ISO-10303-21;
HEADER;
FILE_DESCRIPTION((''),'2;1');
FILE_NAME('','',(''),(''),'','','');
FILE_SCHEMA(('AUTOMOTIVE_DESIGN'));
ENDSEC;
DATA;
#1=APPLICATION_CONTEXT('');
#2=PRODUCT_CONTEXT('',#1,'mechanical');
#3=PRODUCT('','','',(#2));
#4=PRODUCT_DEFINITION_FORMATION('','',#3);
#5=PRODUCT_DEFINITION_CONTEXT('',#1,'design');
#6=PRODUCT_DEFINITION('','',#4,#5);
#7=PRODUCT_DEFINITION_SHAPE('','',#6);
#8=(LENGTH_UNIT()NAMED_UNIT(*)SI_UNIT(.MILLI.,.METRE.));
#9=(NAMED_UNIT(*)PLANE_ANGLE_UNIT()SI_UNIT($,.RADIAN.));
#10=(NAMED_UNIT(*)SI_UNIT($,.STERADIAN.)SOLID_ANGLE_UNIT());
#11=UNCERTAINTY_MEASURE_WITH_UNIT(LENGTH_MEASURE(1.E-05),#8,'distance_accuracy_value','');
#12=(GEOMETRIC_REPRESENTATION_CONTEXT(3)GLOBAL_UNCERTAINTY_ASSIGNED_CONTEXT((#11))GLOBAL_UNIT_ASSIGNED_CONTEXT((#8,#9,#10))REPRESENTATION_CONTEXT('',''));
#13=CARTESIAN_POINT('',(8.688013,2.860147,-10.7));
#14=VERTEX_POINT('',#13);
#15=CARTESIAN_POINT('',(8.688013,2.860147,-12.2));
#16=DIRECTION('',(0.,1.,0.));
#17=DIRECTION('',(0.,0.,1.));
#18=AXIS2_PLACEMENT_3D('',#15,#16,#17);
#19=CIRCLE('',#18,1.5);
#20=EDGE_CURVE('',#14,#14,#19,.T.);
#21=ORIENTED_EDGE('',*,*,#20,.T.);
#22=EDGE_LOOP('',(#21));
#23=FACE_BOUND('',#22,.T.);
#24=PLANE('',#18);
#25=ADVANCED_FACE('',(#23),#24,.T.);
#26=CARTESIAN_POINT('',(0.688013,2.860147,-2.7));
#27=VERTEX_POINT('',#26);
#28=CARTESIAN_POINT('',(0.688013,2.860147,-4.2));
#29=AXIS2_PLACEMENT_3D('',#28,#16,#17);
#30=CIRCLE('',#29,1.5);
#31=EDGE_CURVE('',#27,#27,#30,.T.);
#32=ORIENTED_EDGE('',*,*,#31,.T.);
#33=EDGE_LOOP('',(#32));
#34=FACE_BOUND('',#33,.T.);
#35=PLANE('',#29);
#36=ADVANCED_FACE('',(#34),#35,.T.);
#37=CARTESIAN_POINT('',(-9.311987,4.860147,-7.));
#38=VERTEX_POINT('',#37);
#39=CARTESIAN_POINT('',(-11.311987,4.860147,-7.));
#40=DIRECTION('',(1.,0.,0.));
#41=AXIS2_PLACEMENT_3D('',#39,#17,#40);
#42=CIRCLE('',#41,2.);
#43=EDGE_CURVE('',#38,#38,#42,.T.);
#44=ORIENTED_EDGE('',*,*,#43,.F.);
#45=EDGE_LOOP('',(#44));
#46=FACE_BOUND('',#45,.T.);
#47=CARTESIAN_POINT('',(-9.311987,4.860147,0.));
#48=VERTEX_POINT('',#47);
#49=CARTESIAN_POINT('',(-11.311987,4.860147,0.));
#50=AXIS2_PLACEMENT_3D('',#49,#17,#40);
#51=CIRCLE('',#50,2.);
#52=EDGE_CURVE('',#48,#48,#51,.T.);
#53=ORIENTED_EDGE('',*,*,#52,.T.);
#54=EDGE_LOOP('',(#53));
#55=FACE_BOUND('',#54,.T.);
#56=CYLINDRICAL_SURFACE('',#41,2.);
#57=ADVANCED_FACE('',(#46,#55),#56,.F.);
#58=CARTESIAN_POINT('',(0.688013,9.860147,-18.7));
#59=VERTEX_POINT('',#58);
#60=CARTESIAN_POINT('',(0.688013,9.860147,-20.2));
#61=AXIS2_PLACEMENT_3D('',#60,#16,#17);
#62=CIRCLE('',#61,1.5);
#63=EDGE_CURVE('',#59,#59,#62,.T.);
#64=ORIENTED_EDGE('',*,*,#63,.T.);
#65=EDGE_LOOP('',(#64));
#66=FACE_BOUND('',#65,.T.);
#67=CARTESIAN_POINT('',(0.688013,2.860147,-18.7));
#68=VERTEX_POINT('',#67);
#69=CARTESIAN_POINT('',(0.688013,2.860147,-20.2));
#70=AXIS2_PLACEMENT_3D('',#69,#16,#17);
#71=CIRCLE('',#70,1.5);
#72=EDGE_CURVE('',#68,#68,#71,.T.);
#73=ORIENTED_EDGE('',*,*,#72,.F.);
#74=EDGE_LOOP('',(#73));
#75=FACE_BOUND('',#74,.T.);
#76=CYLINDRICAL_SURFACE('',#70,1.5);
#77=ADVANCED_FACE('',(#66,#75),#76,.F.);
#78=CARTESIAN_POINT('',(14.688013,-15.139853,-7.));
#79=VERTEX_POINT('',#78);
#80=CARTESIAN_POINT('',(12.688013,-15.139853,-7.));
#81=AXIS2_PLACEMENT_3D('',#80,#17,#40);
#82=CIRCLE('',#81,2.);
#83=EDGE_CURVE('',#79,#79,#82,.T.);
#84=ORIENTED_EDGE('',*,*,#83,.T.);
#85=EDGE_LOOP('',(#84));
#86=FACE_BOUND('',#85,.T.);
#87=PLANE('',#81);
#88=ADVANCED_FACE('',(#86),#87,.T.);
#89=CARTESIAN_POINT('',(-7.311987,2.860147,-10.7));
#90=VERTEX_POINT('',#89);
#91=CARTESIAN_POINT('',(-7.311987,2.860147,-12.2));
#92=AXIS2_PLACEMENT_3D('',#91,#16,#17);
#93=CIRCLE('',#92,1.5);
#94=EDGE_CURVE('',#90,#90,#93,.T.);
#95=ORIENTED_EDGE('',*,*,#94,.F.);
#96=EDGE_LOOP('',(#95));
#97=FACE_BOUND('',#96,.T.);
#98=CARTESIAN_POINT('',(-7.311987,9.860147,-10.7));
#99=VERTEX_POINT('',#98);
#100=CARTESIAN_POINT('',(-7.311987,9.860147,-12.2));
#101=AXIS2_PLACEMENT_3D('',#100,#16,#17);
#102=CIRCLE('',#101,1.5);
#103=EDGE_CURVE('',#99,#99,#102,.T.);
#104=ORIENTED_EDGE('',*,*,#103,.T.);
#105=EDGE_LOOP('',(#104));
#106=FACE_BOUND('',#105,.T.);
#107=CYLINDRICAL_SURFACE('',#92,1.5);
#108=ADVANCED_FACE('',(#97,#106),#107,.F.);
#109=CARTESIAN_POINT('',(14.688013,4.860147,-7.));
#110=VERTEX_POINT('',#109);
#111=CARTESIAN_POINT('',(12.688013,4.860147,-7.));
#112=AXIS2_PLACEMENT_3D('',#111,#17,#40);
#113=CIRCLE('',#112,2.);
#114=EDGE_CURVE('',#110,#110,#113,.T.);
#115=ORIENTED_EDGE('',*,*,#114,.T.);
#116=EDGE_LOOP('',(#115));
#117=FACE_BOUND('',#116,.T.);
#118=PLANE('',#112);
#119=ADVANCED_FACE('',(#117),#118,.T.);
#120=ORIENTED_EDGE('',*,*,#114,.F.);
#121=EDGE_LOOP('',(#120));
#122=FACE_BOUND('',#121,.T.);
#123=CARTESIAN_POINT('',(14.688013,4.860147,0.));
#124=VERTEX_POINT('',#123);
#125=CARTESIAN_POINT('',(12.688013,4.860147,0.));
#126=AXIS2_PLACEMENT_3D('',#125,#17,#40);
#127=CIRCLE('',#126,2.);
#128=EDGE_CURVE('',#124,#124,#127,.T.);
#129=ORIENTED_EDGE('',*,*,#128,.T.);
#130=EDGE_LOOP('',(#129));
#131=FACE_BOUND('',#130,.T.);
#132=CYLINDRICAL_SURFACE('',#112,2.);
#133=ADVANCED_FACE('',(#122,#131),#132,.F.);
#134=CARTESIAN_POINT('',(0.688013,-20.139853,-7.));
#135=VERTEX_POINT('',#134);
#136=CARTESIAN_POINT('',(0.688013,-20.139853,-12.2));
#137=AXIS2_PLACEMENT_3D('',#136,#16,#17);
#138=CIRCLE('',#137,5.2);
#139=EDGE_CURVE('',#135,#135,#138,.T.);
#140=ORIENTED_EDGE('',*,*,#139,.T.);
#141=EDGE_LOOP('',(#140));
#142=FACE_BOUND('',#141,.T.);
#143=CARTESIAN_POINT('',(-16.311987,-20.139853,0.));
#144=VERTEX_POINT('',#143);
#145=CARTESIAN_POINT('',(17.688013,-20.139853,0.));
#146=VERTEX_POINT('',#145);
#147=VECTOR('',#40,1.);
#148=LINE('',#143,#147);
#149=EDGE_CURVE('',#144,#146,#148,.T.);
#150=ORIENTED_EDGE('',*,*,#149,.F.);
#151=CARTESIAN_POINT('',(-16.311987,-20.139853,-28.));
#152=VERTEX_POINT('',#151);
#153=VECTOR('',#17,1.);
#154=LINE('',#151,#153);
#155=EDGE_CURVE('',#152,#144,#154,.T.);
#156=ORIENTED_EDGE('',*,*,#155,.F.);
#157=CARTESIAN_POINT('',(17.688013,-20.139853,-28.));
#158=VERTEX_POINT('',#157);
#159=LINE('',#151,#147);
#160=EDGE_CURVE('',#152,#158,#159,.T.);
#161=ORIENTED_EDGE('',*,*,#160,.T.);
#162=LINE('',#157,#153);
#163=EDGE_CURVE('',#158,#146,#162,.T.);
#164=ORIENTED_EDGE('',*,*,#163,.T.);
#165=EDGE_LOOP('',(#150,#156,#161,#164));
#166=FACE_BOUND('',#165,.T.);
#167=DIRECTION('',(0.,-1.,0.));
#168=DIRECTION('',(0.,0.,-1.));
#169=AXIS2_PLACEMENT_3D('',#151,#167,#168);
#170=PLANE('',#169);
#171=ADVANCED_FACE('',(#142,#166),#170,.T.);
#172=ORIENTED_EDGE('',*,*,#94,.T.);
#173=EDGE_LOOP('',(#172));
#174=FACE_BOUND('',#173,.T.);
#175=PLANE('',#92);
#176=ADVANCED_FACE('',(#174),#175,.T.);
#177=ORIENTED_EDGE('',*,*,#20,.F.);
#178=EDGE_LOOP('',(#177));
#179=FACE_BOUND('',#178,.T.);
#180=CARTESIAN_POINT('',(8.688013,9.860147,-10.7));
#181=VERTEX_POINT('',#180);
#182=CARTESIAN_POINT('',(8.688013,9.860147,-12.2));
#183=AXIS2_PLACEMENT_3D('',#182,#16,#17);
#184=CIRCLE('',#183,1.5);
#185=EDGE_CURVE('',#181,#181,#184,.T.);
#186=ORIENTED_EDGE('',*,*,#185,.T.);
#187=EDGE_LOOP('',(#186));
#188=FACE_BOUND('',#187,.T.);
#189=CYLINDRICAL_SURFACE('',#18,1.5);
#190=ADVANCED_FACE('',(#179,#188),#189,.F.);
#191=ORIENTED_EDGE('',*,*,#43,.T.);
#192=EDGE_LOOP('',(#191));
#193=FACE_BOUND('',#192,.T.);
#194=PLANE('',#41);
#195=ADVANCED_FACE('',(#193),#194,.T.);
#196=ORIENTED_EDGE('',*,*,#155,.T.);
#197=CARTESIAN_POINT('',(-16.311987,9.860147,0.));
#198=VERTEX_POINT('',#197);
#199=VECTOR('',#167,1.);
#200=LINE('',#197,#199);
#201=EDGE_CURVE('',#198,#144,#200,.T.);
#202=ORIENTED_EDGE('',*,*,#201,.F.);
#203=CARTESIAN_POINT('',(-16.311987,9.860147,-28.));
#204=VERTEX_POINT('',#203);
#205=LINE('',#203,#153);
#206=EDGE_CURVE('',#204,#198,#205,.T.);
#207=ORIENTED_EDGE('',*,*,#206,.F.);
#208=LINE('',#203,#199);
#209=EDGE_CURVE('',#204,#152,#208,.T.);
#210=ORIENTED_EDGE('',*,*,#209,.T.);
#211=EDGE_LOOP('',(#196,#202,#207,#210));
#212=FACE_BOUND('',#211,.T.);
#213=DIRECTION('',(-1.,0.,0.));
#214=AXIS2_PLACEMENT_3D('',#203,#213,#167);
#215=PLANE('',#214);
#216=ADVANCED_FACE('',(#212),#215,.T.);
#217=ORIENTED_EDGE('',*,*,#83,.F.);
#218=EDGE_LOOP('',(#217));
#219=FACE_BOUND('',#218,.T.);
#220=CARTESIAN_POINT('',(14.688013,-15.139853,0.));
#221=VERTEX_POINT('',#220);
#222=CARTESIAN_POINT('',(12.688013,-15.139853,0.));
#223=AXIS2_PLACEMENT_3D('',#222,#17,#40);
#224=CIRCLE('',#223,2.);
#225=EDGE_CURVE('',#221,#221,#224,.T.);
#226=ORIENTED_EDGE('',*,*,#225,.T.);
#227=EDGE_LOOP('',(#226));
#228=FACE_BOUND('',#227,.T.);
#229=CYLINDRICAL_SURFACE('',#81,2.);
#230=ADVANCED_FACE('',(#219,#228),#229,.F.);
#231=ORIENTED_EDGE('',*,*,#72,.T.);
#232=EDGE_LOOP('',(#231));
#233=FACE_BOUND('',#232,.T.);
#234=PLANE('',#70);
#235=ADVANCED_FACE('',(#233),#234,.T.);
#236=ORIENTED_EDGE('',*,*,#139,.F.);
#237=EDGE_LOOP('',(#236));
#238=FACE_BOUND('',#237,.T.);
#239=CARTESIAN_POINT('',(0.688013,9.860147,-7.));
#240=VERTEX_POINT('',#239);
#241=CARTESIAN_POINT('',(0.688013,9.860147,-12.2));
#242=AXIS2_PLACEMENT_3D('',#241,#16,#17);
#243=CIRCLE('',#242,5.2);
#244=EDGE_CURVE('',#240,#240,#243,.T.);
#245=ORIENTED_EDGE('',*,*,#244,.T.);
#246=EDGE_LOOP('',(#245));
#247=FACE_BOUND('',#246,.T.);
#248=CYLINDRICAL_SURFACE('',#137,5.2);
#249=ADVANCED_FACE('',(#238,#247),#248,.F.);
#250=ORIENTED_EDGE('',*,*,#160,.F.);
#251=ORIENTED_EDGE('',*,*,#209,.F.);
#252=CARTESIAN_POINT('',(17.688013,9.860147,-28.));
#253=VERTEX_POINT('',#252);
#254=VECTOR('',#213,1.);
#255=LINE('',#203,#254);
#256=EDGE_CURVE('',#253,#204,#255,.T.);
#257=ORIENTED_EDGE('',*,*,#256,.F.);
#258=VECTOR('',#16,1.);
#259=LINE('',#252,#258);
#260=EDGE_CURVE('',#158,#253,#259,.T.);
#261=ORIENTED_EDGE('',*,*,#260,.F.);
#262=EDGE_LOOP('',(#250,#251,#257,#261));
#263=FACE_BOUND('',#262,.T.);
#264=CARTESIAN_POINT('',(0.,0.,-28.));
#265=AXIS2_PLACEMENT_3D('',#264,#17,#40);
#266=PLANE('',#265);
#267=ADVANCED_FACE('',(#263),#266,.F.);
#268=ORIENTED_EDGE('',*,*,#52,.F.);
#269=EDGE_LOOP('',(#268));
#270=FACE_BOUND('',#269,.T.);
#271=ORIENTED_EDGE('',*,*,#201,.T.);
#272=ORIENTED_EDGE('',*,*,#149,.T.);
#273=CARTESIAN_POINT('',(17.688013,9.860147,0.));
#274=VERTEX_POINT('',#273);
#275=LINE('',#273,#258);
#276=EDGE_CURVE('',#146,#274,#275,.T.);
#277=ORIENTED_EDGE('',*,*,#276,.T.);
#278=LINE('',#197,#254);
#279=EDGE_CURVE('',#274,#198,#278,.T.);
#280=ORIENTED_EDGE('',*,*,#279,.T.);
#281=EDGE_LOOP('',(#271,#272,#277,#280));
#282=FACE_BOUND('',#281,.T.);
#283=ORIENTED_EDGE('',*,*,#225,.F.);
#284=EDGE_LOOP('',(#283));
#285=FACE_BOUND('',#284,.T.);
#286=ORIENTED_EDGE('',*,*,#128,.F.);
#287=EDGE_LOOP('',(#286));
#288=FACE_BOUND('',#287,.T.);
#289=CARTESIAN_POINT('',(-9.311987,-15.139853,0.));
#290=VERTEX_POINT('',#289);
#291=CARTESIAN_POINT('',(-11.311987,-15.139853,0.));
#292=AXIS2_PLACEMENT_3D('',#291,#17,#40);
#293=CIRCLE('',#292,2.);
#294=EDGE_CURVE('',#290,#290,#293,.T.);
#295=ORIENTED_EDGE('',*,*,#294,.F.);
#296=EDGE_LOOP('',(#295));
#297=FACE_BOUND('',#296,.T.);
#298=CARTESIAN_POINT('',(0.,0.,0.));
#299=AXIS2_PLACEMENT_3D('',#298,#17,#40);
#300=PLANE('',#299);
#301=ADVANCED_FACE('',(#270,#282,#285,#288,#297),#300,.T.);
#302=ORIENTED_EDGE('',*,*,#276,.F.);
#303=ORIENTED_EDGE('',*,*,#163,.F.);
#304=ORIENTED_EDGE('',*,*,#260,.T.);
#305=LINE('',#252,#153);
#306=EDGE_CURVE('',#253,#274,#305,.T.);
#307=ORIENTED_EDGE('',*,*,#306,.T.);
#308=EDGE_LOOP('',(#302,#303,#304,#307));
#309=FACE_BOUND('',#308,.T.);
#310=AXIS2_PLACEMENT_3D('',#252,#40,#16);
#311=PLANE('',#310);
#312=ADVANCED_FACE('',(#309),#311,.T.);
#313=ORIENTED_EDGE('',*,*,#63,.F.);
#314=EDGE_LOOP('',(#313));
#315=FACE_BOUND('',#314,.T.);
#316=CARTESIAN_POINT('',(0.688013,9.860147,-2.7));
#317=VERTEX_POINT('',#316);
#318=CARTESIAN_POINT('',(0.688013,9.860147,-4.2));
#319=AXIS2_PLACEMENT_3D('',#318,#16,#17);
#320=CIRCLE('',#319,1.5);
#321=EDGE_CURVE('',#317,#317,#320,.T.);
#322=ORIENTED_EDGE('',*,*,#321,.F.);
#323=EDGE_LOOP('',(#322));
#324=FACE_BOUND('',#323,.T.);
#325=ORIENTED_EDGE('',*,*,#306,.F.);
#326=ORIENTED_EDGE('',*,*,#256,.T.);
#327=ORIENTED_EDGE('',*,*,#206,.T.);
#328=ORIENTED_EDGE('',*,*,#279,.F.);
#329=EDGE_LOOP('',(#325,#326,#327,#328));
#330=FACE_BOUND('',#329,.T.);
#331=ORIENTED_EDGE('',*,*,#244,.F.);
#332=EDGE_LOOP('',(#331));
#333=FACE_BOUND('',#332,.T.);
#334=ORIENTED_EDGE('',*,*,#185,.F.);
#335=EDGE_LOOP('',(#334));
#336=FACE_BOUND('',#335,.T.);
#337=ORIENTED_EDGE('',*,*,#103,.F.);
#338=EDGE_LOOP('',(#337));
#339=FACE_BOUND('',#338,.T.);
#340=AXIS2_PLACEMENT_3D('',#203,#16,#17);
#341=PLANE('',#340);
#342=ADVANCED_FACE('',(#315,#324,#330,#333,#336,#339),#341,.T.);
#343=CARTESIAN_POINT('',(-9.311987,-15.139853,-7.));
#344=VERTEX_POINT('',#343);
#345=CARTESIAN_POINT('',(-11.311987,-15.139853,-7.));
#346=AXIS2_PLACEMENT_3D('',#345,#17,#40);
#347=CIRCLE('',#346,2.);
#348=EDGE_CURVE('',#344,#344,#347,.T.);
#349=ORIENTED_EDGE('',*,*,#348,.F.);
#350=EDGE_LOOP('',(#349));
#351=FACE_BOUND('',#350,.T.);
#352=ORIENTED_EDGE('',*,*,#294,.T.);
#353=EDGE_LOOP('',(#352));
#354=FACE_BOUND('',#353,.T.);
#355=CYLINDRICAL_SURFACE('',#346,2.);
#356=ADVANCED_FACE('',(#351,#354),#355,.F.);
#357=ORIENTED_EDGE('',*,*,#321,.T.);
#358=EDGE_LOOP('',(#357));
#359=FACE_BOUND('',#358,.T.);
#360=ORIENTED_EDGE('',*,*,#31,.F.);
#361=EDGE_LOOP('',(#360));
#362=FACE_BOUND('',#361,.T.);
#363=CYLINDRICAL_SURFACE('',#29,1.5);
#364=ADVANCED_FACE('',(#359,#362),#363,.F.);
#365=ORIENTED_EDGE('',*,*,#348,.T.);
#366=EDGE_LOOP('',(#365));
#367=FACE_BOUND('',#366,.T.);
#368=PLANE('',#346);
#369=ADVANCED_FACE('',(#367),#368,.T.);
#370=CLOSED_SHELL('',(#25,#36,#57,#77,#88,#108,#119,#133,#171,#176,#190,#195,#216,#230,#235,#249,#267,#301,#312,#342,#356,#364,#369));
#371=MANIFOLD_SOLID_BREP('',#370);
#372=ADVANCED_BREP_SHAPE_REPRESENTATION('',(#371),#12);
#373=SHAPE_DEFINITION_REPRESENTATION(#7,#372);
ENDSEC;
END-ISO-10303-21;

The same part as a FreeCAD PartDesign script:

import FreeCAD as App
import Part
import Sketcher

doc = App.newDocument("Part")
body = doc.addObject("PartDesign::Body", "Body")

# Sketch on XY plane
sketch1 = body.newObject("Sketcher::SketchObject", "Sketch")
sketch1.AttachmentSupport = (doc.getObject("XY_Plane"), [""])
sketch1.MapMode = "FlatFace"
sketch1.addGeometry([
    Part.LineSegment(App.Vector(-16.311987, 9.860147, 0), App.Vector(-16.311987, -20.139853, 0)),
    Part.LineSegment(App.Vector(-16.311987, -20.139853, 0), App.Vector(17.688013, -20.139853, 0)),
    Part.LineSegment(App.Vector(17.688013, -20.139853, 0), App.Vector(17.688013, 9.860147, 0)),
    Part.LineSegment(App.Vector(17.688013, 9.860147, 0), App.Vector(-16.311987, 9.860147, 0)),
], False)
sketch1.addConstraint([
    Sketcher.Constraint("Coincident", 0, 2, 1, 1),
    Sketcher.Constraint("Coincident", 1, 2, 2, 1),
    Sketcher.Constraint("Coincident", 2, 2, 3, 1),
    Sketcher.Constraint("Coincident", 3, 2, 0, 1),
    Sketcher.Constraint("Vertical", 0),
    Sketcher.Constraint("Horizontal", 1),
    Sketcher.Constraint("Vertical", 2),
    Sketcher.Constraint("Horizontal", 3),
    Sketcher.Constraint("DistanceX", 1, 1, 1, 2, 34.0),
    Sketcher.Constraint("DistanceY", 0, 2, 0, 1, 30.0),
    Sketcher.Constraint("DistanceX", 0, 2, -1, 1, 16.311987),
    Sketcher.Constraint("DistanceY", 0, 2, -1, 1, 20.139853),
])
pad1 = body.newObject("PartDesign::Pad", "Pad")
pad1.Profile = sketch1
pad1.Length = 28
pad1.Reversed = True

# Sketch on XY plane
sketch2 = body.newObject("Sketcher::SketchObject", "Sketch001")
sketch2.AttachmentSupport = (doc.getObject("XY_Plane"), [""])
sketch2.MapMode = "FlatFace"
sketch2.addGeometry([
    Part.Circle(App.Vector(-11.311987, 4.860147, 0), App.Vector(0, 0, 1), 2),
    Part.Circle(App.Vector(12.688013, 4.860147, 0), App.Vector(0, 0, 1), 2),
    Part.Circle(App.Vector(12.688013, -15.139853, 0), App.Vector(0, 0, 1), 2),
    Part.Circle(App.Vector(-11.311987, -15.139853, 0), App.Vector(0, 0, 1), 2),
], False)
sketch2.addConstraint([
    Sketcher.Constraint("Equal", 0, 1),
    Sketcher.Constraint("Equal", 1, 2),
    Sketcher.Constraint("Equal", 2, 3),
    Sketcher.Constraint("Horizontal", 0, 3, 1, 3),
    Sketcher.Constraint("Horizontal", 2, 3, 3, 3),
    Sketcher.Constraint("Vertical", 1, 3, 2, 3),
    Sketcher.Constraint("Vertical", 0, 3, 3, 3),
    Sketcher.Constraint("Diameter", 0, 4.0),
    Sketcher.Constraint("DistanceX", 0, 3, 1, 3, 24.0),
    Sketcher.Constraint("DistanceY", 2, 3, 1, 3, 20.0),
    Sketcher.Constraint("DistanceX", 0, 3, -1, 1, 11.311987),
    Sketcher.Constraint("DistanceY", -1, 1, 0, 3, 4.860147),
])
pocket1 = body.newObject("PartDesign::Pocket", "Pocket")
pocket1.Profile = sketch2
pocket1.Length = 7

# Sketch on XZ plane
sketch3 = body.newObject("Sketcher::SketchObject", "Sketch002")
sketch3.AttachmentSupport = (doc.getObject("XZ_Plane"), [""])
sketch3.MapMode = "FlatFace"
sketch3.AttachmentOffset = App.Placement(App.Vector(0, 0, -9.860147), App.Rotation())
sketch3.addGeometry(Part.Circle(App.Vector(0.688013, -12.2, 0), App.Vector(0, 0, 1), 5.2), False)
sketch3.addConstraint([
    Sketcher.Constraint("Diameter", 0, 10.4),
    Sketcher.Constraint("DistanceY", 0, 3, -1, 1, 12.2),
    Sketcher.Constraint("DistanceX", -1, 1, 0, 3, 0.688013),
])
pocket2 = body.newObject("PartDesign::Pocket", "Pocket001")
pocket2.Profile = sketch3
pocket2.Type = "ThroughAll"
pocket2.Reversed = True

# Sketch on XZ plane
sketch4 = body.newObject("Sketcher::SketchObject", "Sketch003")
sketch4.AttachmentSupport = (doc.getObject("XZ_Plane"), [""])
sketch4.MapMode = "FlatFace"
sketch4.AttachmentOffset = App.Placement(App.Vector(0, 0, -9.860147), App.Rotation())
sketch4.addGeometry([
    Part.Circle(App.Vector(0.688013, -4.2, 0), App.Vector(0, 0, 1), 1.5),
    Part.Circle(App.Vector(8.688013, -12.2, 0), App.Vector(0, 0, 1), 1.5),
    Part.Circle(App.Vector(0.688013, -20.2, 0), App.Vector(0, 0, 1), 1.5),
    Part.Circle(App.Vector(-7.311987, -12.2, 0), App.Vector(0, 0, 1), 1.5),
], False)
sketch4.addConstraint([
    Sketcher.Constraint("Equal", 0, 1),
    Sketcher.Constraint("Equal", 1, 2),
    Sketcher.Constraint("Equal", 2, 3),
    Sketcher.Constraint("Horizontal", 1, 3, 3, 3),
    Sketcher.Constraint("Vertical", 0, 3, 2, 3),
    Sketcher.Constraint("Diameter", 0, 3.0),
    Sketcher.Constraint("DistanceX", 0, 3, 1, 3, 8.0),
    Sketcher.Constraint("DistanceY", 1, 3, 0, 3, 8.0),
    Sketcher.Constraint("DistanceY", 2, 3, 1, 3, 8.0),
    Sketcher.Constraint("DistanceX", 3, 3, 0, 3, 8.0),
    Sketcher.Constraint("DistanceY", 0, 3, -1, 1, 4.2),
    Sketcher.Constraint("DistanceX", -1, 1, 0, 3, 0.688013),
])
pocket3 = body.newObject("PartDesign::Pocket", "Pocket002")
pocket3.Profile = sketch4
pocket3.Length = 7
pocket3.Reversed = True

doc.recompute()
